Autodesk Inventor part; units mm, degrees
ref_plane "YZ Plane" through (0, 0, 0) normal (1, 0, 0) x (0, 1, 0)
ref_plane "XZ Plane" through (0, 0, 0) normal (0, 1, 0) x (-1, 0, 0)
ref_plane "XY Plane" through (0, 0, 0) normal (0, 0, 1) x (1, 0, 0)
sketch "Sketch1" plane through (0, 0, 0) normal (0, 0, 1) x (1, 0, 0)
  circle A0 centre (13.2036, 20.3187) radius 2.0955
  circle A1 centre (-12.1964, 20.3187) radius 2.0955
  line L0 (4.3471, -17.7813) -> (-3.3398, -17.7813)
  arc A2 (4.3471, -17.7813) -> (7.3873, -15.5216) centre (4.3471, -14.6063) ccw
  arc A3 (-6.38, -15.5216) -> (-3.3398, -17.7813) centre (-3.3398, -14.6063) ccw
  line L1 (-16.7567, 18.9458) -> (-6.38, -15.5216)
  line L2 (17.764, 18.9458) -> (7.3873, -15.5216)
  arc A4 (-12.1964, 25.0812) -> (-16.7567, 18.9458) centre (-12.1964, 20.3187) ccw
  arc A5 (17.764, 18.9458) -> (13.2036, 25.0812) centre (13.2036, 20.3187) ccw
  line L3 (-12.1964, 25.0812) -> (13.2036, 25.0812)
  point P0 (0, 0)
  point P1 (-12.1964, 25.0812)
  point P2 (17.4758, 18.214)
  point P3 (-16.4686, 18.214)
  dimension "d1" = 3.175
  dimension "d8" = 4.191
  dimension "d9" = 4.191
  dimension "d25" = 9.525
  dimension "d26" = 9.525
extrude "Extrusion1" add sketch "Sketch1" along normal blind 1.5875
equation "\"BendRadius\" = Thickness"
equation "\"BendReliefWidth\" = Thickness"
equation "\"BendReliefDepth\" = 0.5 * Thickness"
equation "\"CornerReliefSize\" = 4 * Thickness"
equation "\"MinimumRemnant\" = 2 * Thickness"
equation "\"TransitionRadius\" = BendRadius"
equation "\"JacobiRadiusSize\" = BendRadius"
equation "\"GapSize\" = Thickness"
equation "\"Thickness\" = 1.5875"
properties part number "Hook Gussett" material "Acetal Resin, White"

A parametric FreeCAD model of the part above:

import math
import FreeCAD as App
import Part
import Sketcher
from FreeCAD import Vector
Q = App.Units.Quantity

doc = App.newDocument("Part")
body = doc.addObject("PartDesign::Body", "Body")

sketch1 = body.newObject("Sketcher::SketchObject", "Sketch")
sketch1.AttachmentSupport = (doc.getObject("XY_Plane"), [""])
sketch1.MapMode = "FlatFace"
sketch1.addGeometry([
    Part.LineSegment(Vector(-3.3, -17.8, 0), Vector(4.3, -17.8, 0)),
    Part.ArcOfCircle(Part.Circle(Vector(4.3, -14.6, 0), Vector(0, 0, 1), 3.2), math.radians(-90), math.radians(-17)),
    Part.LineSegment(Vector(7.4, -15.5, 0), Vector(17.8, 18.9, 0)),
    Part.ArcOfCircle(Part.Circle(Vector(13.2, 20.3, 0), Vector(0, 0, 1), 4.8), math.radians(-17), math.radians(90)),
    Part.LineSegment(Vector(13.2, 25.1, 0), Vector(-12.2, 25.1, 0)),
    Part.ArcOfCircle(Part.Circle(Vector(-12.2, 20.3, 0), Vector(0, 0, 1), 4.8), math.radians(90), math.radians(197)),
    Part.LineSegment(Vector(-16.8, 18.9, 0), Vector(-6.4, -15.5, 0)),
    Part.ArcOfCircle(Part.Circle(Vector(-3.3, -14.6, 0), Vector(0, 0, 1), 3.2), math.radians(-163), math.radians(-90)),
    Part.Circle(Vector(-12.2, 20.3, 0), Vector(0, 0, 1), 2.1),
    Part.Circle(Vector(13.2, 20.3, 0), Vector(0, 0, 1), 2.1),
], False)
sketch1.addConstraint([
    Sketcher.Constraint("Tangent", 0, 2, 1, 1),
    Sketcher.Constraint("Tangent", 1, 2, 2, 1),
    Sketcher.Constraint("Tangent", 2, 2, 3, 1),
    Sketcher.Constraint("Tangent", 3, 2, 4, 1),
    Sketcher.Constraint("Tangent", 4, 2, 5, 1),
    Sketcher.Constraint("Tangent", 5, 2, 6, 1),
    Sketcher.Constraint("Tangent", 6, 2, 7, 1),
    Sketcher.Constraint("Tangent", 7, 2, 0, 1),
    Sketcher.Constraint("Horizontal", 0),
    Sketcher.Constraint("Horizontal", 4),
    Sketcher.Constraint("Coincident", 8, 3, 5, 3),
    Sketcher.Constraint("Coincident", 9, 3, 3, 3),
    Sketcher.Constraint("Equal", 3, 5),
    Sketcher.Constraint("Equal", 1, 7),
    Sketcher.Constraint("Equal", 8, 9),
    Sketcher.Constraint("Horizontal", 2, 2, 5, 2),
    Sketcher.Constraint("Diameter", 8, Q("0.165 in")),
    Sketcher.Constraint("Radius", 1, Q("0.125 in")),
    Sketcher.Constraint("Radius", 3, Q("0.1875 in")),
    Sketcher.Constraint("DistanceX", 4, 2, 4, 1, Q("1 in")),
    Sketcher.Constraint("DistanceY", 0, 2, 3, 3, Q("1.5 in")),
    Sketcher.Constraint("DistanceX", 0, 1, 0, 2, 7.687),
    Sketcher.Constraint("DistanceX", 7, 3, -1, 1, Q("0.1315 in")),
    Sketcher.Constraint("DistanceY", -1, 1, 2, 2, Q("0.7459 in")),
])
pad1 = body.newObject("PartDesign::Pad", "Pad")
pad1.Profile = sketch1
pad1.Length = Q("0.0625 in")

doc.recompute()
